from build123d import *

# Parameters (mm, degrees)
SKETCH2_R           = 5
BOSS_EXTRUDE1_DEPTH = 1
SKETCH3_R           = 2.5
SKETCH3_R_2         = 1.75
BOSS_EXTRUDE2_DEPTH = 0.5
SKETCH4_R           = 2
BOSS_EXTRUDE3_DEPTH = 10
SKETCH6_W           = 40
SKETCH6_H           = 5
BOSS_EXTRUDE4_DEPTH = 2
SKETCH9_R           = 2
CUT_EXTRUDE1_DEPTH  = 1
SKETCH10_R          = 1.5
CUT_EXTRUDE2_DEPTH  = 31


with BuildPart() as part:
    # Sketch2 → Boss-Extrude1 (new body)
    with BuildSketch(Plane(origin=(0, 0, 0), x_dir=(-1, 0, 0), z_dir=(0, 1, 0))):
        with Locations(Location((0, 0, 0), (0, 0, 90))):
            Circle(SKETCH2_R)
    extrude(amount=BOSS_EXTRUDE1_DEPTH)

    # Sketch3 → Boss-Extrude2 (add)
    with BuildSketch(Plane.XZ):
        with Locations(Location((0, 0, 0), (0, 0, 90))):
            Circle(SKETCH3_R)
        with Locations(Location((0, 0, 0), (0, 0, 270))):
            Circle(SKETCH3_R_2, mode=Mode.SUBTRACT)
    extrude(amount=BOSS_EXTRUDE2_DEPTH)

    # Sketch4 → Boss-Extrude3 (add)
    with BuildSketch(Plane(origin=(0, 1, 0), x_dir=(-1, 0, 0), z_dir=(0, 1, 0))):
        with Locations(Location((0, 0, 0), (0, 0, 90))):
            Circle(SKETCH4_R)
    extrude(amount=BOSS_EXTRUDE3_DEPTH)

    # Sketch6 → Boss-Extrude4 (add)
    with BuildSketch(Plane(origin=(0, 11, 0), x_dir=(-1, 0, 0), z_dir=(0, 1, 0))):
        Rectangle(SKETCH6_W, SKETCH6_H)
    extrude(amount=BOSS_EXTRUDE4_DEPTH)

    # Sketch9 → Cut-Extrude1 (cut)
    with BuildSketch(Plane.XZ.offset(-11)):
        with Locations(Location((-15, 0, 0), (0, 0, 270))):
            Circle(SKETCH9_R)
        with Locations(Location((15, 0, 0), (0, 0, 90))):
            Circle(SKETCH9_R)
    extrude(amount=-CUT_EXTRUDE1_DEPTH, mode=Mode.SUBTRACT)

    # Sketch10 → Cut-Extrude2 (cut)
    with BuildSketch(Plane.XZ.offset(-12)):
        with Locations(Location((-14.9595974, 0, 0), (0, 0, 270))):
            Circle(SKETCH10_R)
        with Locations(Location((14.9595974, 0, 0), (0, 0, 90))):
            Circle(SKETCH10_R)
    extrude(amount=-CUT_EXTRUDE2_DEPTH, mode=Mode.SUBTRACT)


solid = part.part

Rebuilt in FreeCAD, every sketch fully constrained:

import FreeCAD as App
import Part
import Sketcher

V = App.Vector

doc = App.newDocument("Part")
body = doc.addObject("PartDesign::Body", "Body")

sketch1 = body.newObject("Sketcher::SketchObject", "Sketch")
sketch1.AttachmentSupport = (doc.getObject("XZ_Plane"), [""])
sketch1.MapMode = "FlatFace"
sketch1.addGeometry(Part.Circle(V(0, 0, 0), V(0, 0, 1), 5), False)
sketch1.addConstraint([
    Sketcher.Constraint("Coincident", 0, 3, -1, 1),
    Sketcher.Constraint("Diameter", 0, 10.0),
])
pad1 = body.newObject("PartDesign::Pad", "Pad")
pad1.Profile = sketch1
pad1.Length = 1
pad1.Reversed = True

sketch2 = body.newObject("Sketcher::SketchObject", "Sketch001")
sketch2.AttachmentSupport = (doc.getObject("XZ_Plane"), [""])
sketch2.MapMode = "FlatFace"
sketch2.addGeometry([
    Part.Circle(V(0, 0, 0), V(0, 0, 1), 2.5),
    Part.Circle(V(0, 0, 0), V(0, 0, 1), 1.75),
], False)
sketch2.addConstraint([
    Sketcher.Constraint("Coincident", 0, 3, -1, 1),
    Sketcher.Constraint("Coincident", 1, 3, -1, 1),
    Sketcher.Constraint("Diameter", 0, 5.0),
    Sketcher.Constraint("Diameter", 1, 3.5),
])
pad2 = body.newObject("PartDesign::Pad", "Pad001")
pad2.Profile = sketch2
pad2.Length = 0.5

sketch3 = body.newObject("Sketcher::SketchObject", "Sketch002")
sketch3.AttachmentSupport = (doc.getObject("XZ_Plane"), [""])
sketch3.MapMode = "FlatFace"
sketch3.AttachmentOffset = App.Placement(V(0, 0, -1), App.Rotation())
sketch3.addGeometry(Part.Circle(V(0, 0, 0), V(0, 0, 1), 2), False)
sketch3.addConstraint([
    Sketcher.Constraint("Coincident", 0, 3, -1, 1),
    Sketcher.Constraint("Diameter", 0, 4.0),
])
pad3 = body.newObject("PartDesign::Pad", "Pad002")
pad3.Profile = sketch3
pad3.Length = 10
pad3.Reversed = True

sketch4 = body.newObject("Sketcher::SketchObject", "Sketch003")
sketch4.AttachmentSupport = (doc.getObject("XZ_Plane"), [""])
sketch4.MapMode = "FlatFace"
sketch4.AttachmentOffset = App.Placement(V(0, 0, -11), App.Rotation())
sketch4.addGeometry([
    Part.LineSegment(V(20, 2.5, 0), V(20, -2.5, 0)),
    Part.LineSegment(V(20, -2.5, 0), V(-20, -2.5, 0)),
    Part.LineSegment(V(-20, -2.5, 0), V(-20, 2.5, 0)),
    Part.LineSegment(V(-20, 2.5, 0), V(20, 2.5, 0)),
], False)
sketch4.addConstraint([
    Sketcher.Constraint("Coincident", 0, 2, 1, 1),
    Sketcher.Constraint("Coincident", 1, 2, 2, 1),
    Sketcher.Constraint("Coincident", 2, 2, 3, 1),
    Sketcher.Constraint("Coincident", 3, 2, 0, 1),
    Sketcher.Constraint("Vertical", 0),
    Sketcher.Constraint("Horizontal", 1),
    Sketcher.Constraint("Vertical", 2),
    Sketcher.Constraint("Horizontal", 3),
    Sketcher.Constraint("Symmetric", 0, 2, 2, 2, -1, 1),
    Sketcher.Constraint("DistanceX", 1, 2, 1, 1, 40.0),
    Sketcher.Constraint("DistanceY", 0, 2, 0, 1, 5.0),
])
pad4 = body.newObject("PartDesign::Pad", "Pad003")
pad4.Profile = sketch4
pad4.Length = 2
pad4.Reversed = True

sketch5 = body.newObject("Sketcher::SketchObject", "Sketch004")
sketch5.AttachmentSupport = (doc.getObject("XZ_Plane"), [""])
sketch5.MapMode = "FlatFace"
sketch5.AttachmentOffset = App.Placement(V(0, 0, -11), App.Rotation())
sketch5.addGeometry([
    Part.Circle(V(-15, 0, 0), V(0, 0, 1), 2),
    Part.Circle(V(15, 0, 0), V(0, 0, 1), 2),
], False)
sketch5.addConstraint([
    Sketcher.Constraint("Equal", 0, 1),
    Sketcher.Constraint("Symmetric", 0, 3, 1, 3, -1, 1),
    Sketcher.Constraint("PointOnObject", 0, 3, -1),
    Sketcher.Constraint("Diameter", 0, 4.0),
    Sketcher.Constraint("DistanceX", 0, 3, -1, 1, 15.0),
])
pocket1 = body.newObject("PartDesign::Pocket", "Pocket")
pocket1.Profile = sketch5
pocket1.Length = 1

sketch6 = body.newObject("Sketcher::SketchObject", "Sketch005")
sketch6.AttachmentSupport = (doc.getObject("XZ_Plane"), [""])
sketch6.MapMode = "FlatFace"
sketch6.AttachmentOffset = App.Placement(V(0, 0, -12), App.Rotation())
sketch6.addGeometry([
    Part.Circle(V(-14.959597, 0, 0), V(0, 0, 1), 1.5),
    Part.Circle(V(14.959597, 0, 0), V(0, 0, 1), 1.5),
], False)
sketch6.addConstraint([
    Sketcher.Constraint("Equal", 0, 1),
    Sketcher.Constraint("Symmetric", 0, 3, 1, 3, -1, 1),
    Sketcher.Constraint("PointOnObject", 0, 3, -1),
    Sketcher.Constraint("Diameter", 0, 3.0),
    Sketcher.Constraint("DistanceX", 0, 3, -1, 1, 14.959597),
])
pocket2 = body.newObject("PartDesign::Pocket", "Pocket001")
pocket2.Profile = sketch6
pocket2.Length = 31

doc.recompute()
